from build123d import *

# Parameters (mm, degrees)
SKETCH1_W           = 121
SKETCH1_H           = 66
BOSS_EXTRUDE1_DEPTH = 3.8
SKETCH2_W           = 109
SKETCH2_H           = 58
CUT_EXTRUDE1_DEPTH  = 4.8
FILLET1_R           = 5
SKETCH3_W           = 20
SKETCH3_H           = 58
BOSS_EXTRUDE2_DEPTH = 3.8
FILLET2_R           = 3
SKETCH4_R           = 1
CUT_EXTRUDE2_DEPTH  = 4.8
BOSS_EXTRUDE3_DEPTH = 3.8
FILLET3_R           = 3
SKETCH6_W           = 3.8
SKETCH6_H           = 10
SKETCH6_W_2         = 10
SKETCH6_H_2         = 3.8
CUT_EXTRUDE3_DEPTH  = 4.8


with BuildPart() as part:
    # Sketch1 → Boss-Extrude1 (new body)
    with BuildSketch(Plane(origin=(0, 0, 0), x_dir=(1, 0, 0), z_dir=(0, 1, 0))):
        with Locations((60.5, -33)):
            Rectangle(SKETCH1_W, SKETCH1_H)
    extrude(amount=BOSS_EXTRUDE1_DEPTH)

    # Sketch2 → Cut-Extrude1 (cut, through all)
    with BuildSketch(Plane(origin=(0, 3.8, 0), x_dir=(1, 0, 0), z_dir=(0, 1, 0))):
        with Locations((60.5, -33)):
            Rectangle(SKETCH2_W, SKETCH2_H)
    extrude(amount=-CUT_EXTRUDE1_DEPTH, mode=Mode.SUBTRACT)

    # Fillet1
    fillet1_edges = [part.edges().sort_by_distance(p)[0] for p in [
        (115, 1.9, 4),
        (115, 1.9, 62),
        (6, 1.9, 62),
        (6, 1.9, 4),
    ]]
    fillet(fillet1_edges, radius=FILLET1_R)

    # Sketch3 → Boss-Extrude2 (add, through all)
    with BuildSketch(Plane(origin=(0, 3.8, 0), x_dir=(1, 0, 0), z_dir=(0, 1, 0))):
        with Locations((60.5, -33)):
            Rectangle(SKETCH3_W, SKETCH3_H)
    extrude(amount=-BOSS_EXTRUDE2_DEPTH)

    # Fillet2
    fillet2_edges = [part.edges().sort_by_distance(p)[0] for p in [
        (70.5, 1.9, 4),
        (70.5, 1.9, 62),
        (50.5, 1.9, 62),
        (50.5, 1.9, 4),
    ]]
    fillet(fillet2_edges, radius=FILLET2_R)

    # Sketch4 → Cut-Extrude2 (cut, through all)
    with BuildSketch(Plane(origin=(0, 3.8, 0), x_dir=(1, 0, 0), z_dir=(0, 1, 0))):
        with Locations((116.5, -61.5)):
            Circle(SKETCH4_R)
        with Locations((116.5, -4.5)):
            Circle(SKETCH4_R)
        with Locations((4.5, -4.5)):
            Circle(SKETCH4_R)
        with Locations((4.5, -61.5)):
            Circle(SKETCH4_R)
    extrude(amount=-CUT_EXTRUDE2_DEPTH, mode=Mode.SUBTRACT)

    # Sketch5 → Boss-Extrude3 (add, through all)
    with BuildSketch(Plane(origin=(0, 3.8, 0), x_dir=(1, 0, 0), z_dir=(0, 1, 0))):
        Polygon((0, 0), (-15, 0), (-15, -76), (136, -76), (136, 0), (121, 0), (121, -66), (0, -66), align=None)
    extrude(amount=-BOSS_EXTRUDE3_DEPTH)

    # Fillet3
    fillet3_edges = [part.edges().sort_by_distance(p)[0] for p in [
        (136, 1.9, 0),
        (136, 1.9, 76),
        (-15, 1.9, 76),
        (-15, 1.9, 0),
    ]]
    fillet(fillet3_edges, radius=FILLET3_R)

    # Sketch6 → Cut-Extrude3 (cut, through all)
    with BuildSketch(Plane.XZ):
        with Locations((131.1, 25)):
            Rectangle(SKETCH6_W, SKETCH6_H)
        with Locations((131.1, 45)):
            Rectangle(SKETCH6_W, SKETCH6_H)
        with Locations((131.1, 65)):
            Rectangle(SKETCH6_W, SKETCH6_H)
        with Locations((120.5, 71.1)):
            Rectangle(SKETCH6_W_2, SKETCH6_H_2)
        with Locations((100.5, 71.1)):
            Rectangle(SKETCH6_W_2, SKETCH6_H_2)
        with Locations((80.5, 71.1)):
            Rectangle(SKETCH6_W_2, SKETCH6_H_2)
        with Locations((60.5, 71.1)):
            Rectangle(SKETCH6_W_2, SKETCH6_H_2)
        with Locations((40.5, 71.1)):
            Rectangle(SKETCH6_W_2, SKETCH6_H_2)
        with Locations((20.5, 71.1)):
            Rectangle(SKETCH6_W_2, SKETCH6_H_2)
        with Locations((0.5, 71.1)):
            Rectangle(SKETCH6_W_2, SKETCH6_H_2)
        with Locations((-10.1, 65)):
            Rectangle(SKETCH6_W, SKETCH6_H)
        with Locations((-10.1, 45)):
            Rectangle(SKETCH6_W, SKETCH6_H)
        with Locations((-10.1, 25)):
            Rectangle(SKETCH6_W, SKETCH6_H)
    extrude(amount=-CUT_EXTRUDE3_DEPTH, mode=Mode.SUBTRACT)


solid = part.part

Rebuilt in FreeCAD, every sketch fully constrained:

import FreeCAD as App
import Part
import Sketcher
from FreeCAD import Vector


def edges_at(feature, points):
    """Names of the edges that pass closest to the given points."""
    edges = feature.Shape.Edges
    near = lambda p: min(range(len(edges)), key=lambda i: edges[i].distToShape(Part.Vertex(*p))[0])
    return sorted({f"Edge{near(p) + 1}" for p in points})


def add_polygon(sketch, points):
    """Adds a closed chain of lines whose ends are joined by coincident constraints."""
    first, n = sketch.GeometryCount, len(points)
    for a, b in zip(points, points[1:] + points[:1]):
        sketch.addGeometry(Part.LineSegment(App.Vector(*a, 0), App.Vector(*b, 0)), False)
    for i in range(n):
        sketch.addConstraint(Sketcher.Constraint("Coincident", first + i, 2, first + (i + 1) % n, 1))

doc = App.newDocument("Part")
body = doc.addObject("PartDesign::Body", "Body")

# Sketch on XZ plane
sketch1 = body.newObject("Sketcher::SketchObject", "Sketch")
sketch1.AttachmentSupport = (doc.getObject("XZ_Plane"), [""])
sketch1.MapMode = "FlatFace"
add_polygon(sketch1, [(0, 0), (0, 66), (121, 66), (121, 0)])  # lines 0-3
sketch1.addConstraint(Sketcher.Constraint("Vertical", 0))
sketch1.addConstraint(Sketcher.Constraint("Horizontal", 1))
sketch1.addConstraint(Sketcher.Constraint("Vertical", 2))
sketch1.addConstraint(Sketcher.Constraint("Horizontal", 3))
sketch1.addConstraint(Sketcher.Constraint("Coincident", 3, 2, -1, 1))
sketch1.addConstraint(Sketcher.Constraint("DistanceX", 1, 1, 1, 2, 121.0))
sketch1.addConstraint(Sketcher.Constraint("DistanceY", 0, 1, 0, 2, 66.0))
pad1 = body.newObject("PartDesign::Pad", "Pad")
pad1.Profile = sketch1
pad1.Length = 3.8
pad1.Reversed = True

# Sketch on XZ plane
sketch2 = body.newObject("Sketcher::SketchObject", "Sketch001")
sketch2.AttachmentSupport = (doc.getObject("XZ_Plane"), [""])
sketch2.MapMode = "FlatFace"
sketch2.AttachmentOffset = App.Placement(Vector(0, 0, -3.8), App.Rotation())
add_polygon(sketch2, [(6, 4), (6, 62), (115, 62), (115, 4)])  # lines 0-3
sketch2.addConstraint(Sketcher.Constraint("Vertical", 0))
sketch2.addConstraint(Sketcher.Constraint("Horizontal", 1))
sketch2.addConstraint(Sketcher.Constraint("Vertical", 2))
sketch2.addConstraint(Sketcher.Constraint("Horizontal", 3))
sketch2.addConstraint(Sketcher.Constraint("DistanceX", 1, 1, 1, 2, 109.0))
sketch2.addConstraint(Sketcher.Constraint("DistanceY", 0, 1, 0, 2, 58.0))
sketch2.addConstraint(Sketcher.Constraint("DistanceX", -1, 1, 0, 2, 6.0))
sketch2.addConstraint(Sketcher.Constraint("DistanceY", -1, 1, 0, 2, 62.0))
pocket1 = body.newObject("PartDesign::Pocket", "Pocket")
pocket1.Profile = sketch2
pocket1.Type = "ThroughAll"
pocket1.Reversed = True
doc.recompute()

fillet = body.newObject("PartDesign::Fillet", "Fillet")
fillet.Base = (pocket1, edges_at(pocket1, [
    (115, 1.9, 4),
    (115, 1.9, 62),
    (6, 1.9, 62),
    (6, 1.9, 4),
]))
fillet.Radius = 5

# Sketch on XZ plane
sketch3 = body.newObject("Sketcher::SketchObject", "Sketch002")
sketch3.AttachmentSupport = (doc.getObject("XZ_Plane"), [""])
sketch3.MapMode = "FlatFace"
sketch3.AttachmentOffset = App.Placement(Vector(0, 0, -3.8), App.Rotation())
add_polygon(sketch3, [(50.5, 4), (50.5, 62), (70.5, 62), (70.5, 4)])  # lines 0-3
sketch3.addConstraint(Sketcher.Constraint("Vertical", 0))
sketch3.addConstraint(Sketcher.Constraint("Horizontal", 1))
sketch3.addConstraint(Sketcher.Constraint("Vertical", 2))
sketch3.addConstraint(Sketcher.Constraint("Horizontal", 3))
sketch3.addConstraint(Sketcher.Constraint("DistanceX", 1, 1, 1, 2, 20.0))
sketch3.addConstraint(Sketcher.Constraint("DistanceY", 0, 1, 0, 2, 58.0))
sketch3.addConstraint(Sketcher.Constraint("DistanceY", -1, 1, 0, 2, 62.0))
sketch3.addConstraint(Sketcher.Constraint("DistanceX", -1, 1, 0, 2, 50.5))
pad2 = body.newObject("PartDesign::Pad", "Pad001")
pad2.Profile = sketch3
pad2.Length = 3.8
doc.recompute()

fillet2 = body.newObject("PartDesign::Fillet", "Fillet001")
fillet2.Base = (pad2, edges_at(pad2, [
    (70.5, 1.9, 4),
    (70.5, 1.9, 62),
    (50.5, 1.9, 62),
    (50.5, 1.9, 4),
]))
fillet2.Radius = 3

# Sketch on XZ plane
sketch4 = body.newObject("Sketcher::SketchObject", "Sketch003")
sketch4.AttachmentSupport = (doc.getObject("XZ_Plane"), [""])
sketch4.MapMode = "FlatFace"
sketch4.AttachmentOffset = App.Placement(Vector(0, 0, -3.8), App.Rotation())
sketch4.addGeometry(Part.Circle(Vector(116.5, 61.5, 0), Vector(0, 0, 1), 1), False)
sketch4.addGeometry(Part.Circle(Vector(116.5, 4.5, 0), Vector(0, 0, 1), 1), False)
sketch4.addGeometry(Part.Circle(Vector(4.5, 4.5, 0), Vector(0, 0, 1), 1), False)
sketch4.addGeometry(Part.Circle(Vector(4.5, 61.5, 0), Vector(0, 0, 1), 1), False)
sketch4.addConstraint(Sketcher.Constraint("Equal", 0, 1))
sketch4.addConstraint(Sketcher.Constraint("Equal", 1, 2))
sketch4.addConstraint(Sketcher.Constraint("Equal", 2, 3))
sketch4.addConstraint(Sketcher.Constraint("Horizontal", 1, 3, 2, 3))
sketch4.addConstraint(Sketcher.Constraint("Horizontal", 0, 3, 3, 3))
sketch4.addConstraint(Sketcher.Constraint("Vertical", 0, 3, 1, 3))
sketch4.addConstraint(Sketcher.Constraint("Vertical", 2, 3, 3, 3))
sketch4.addConstraint(Sketcher.Constraint("Diameter", 0, 2.0))
sketch4.addConstraint(Sketcher.Constraint("DistanceY", 1, 3, 0, 3, 57.0))
sketch4.addConstraint(Sketcher.Constraint("DistanceX", 2, 3, 1, 3, 112.0))
sketch4.addConstraint(Sketcher.Constraint("DistanceX", -1, 1, 0, 3, 116.5))
sketch4.addConstraint(Sketcher.Constraint("DistanceY", -1, 1, 0, 3, 61.5))
pocket2 = body.newObject("PartDesign::Pocket", "Pocket001")
pocket2.Profile = sketch4
pocket2.Type = "ThroughAll"
pocket2.Reversed = True

# Sketch on XZ plane
sketch5 = body.newObject("Sketcher::SketchObject", "Sketch004")
sketch5.AttachmentSupport = (doc.getObject("XZ_Plane"), [""])
sketch5.MapMode = "FlatFace"
sketch5.AttachmentOffset = App.Placement(Vector(0, 0, -3.8), App.Rotation())
add_polygon(sketch5, [(0, 0), (-15, 0), (-15, 76), (136, 76), (136, 0), (121, 0), (121, 66), (0, 66)])  # lines 0-7
sketch5.addConstraint(Sketcher.Constraint("Horizontal", 0))
sketch5.addConstraint(Sketcher.Constraint("Vertical", 1))
sketch5.addConstraint(Sketcher.Constraint("Horizontal", 2))
sketch5.addConstraint(Sketcher.Constraint("Vertical", 3))
sketch5.addConstraint(Sketcher.Constraint("Horizontal", 4))
sketch5.addConstraint(Sketcher.Constraint("Vertical", 5))
sketch5.addConstraint(Sketcher.Constraint("Horizontal", 6))
sketch5.addConstraint(Sketcher.Constraint("Vertical", 7))
sketch5.addConstraint(Sketcher.Constraint("Coincident", 7, 2, -1, 1))
sketch5.addConstraint(Sketcher.Constraint("PointOnObject", 3, 2, -1))
sketch5.addConstraint(Sketcher.Constraint("Equal", 0, 4))
sketch5.addConstraint(Sketcher.Constraint("DistanceX", 0, 2, 0, 1, 15.0))
sketch5.addConstraint(Sketcher.Constraint("DistanceX", 2, 1, 2, 2, 151.0))
sketch5.addConstraint(Sketcher.Constraint("DistanceY", 1, 1, 1, 2, 76.0))
sketch5.addConstraint(Sketcher.Constraint("DistanceY", 5, 1, 5, 2, 66.0))
pad3 = body.newObject("PartDesign::Pad", "Pad002")
pad3.Profile = sketch5
pad3.Type = "UpToLast"
doc.recompute()

fillet3 = body.newObject("PartDesign::Fillet", "Fillet002")
fillet3.Base = (pad3, edges_at(pad3, [
    (136, 1.9, 0),
    (136, 1.9, 76),
    (-15, 1.9, 76),
    (-15, 1.9, 0),
]))
fillet3.Radius = 3

# Sketch on XZ plane
sketch6 = body.newObject("Sketcher::SketchObject", "Sketch005")
sketch6.AttachmentSupport = (doc.getObject("XZ_Plane"), [""])
sketch6.MapMode = "FlatFace"
add_polygon(sketch6, [(129.2, 30), (129.2, 20), (133, 20), (133, 30)])  # lines 0-3
add_polygon(sketch6, [(129.2, 50), (129.2, 40), (133, 40), (133, 50)])  # lines 4-7
add_polygon(sketch6, [(129.2, 70), (129.2, 60), (133, 60), (133, 70)])  # lines 8-11
add_polygon(sketch6, [(115.5, 73), (115.5, 69.2), (125.5, 69.2), (125.5, 73)])  # lines 12-15
add_polygon(sketch6, [(95.5, 73), (95.5, 69.2), (105.5, 69.2), (105.5, 73)])  # lines 16-19
add_polygon(sketch6, [(75.5, 73), (75.5, 69.2), (85.5, 69.2), (85.5, 73)])  # lines 20-23
add_polygon(sketch6, [(55.5, 73), (55.5, 69.2), (65.5, 69.2), (65.5, 73)])  # lines 24-27
add_polygon(sketch6, [(35.5, 73), (35.5, 69.2), (45.5, 69.2), (45.5, 73)])  # lines 28-31
add_polygon(sketch6, [(15.5, 73), (15.5, 69.2), (25.5, 69.2), (25.5, 73)])  # lines 32-35
add_polygon(sketch6, [(-4.5, 73), (-4.5, 69.2), (5.5, 69.2), (5.5, 73)])  # lines 36-39
add_polygon(sketch6, [(-12, 70), (-12, 60), (-8.2, 60), (-8.2, 70)])  # lines 40-43
add_polygon(sketch6, [(-12, 50), (-12, 40), (-8.2, 40), (-8.2, 50)])  # lines 44-47
add_polygon(sketch6, [(-12, 30), (-12, 20), (-8.2, 20), (-8.2, 30)])  # lines 48-51
sketch6.addConstraint(Sketcher.Constraint("Vertical", 0))
sketch6.addConstraint(Sketcher.Constraint("Horizontal", 1))
sketch6.addConstraint(Sketcher.Constraint("Vertical", 2))
sketch6.addConstraint(Sketcher.Constraint("Horizontal", 3))
sketch6.addConstraint(Sketcher.Constraint("Vertical", 4))
sketch6.addConstraint(Sketcher.Constraint("Horizontal", 5))
sketch6.addConstraint(Sketcher.Constraint("Vertical", 6))
sketch6.addConstraint(Sketcher.Constraint("Horizontal", 7))
sketch6.addConstraint(Sketcher.Constraint("Vertical", 8))
sketch6.addConstraint(Sketcher.Constraint("Horizontal", 9))
sketch6.addConstraint(Sketcher.Constraint("Vertical", 10))
sketch6.addConstraint(Sketcher.Constraint("Horizontal", 11))
sketch6.addConstraint(Sketcher.Constraint("Vertical", 12))
sketch6.addConstraint(Sketcher.Constraint("Horizontal", 13))
sketch6.addConstraint(Sketcher.Constraint("Vertical", 14))
sketch6.addConstraint(Sketcher.Constraint("Horizontal", 15))
sketch6.addConstraint(Sketcher.Constraint("Vertical", 16))
sketch6.addConstraint(Sketcher.Constraint("Horizontal", 17))
sketch6.addConstraint(Sketcher.Constraint("Vertical", 18))
sketch6.addConstraint(Sketcher.Constraint("Horizontal", 19))
sketch6.addConstraint(Sketcher.Constraint("Vertical", 20))
sketch6.addConstraint(Sketcher.Constraint("Horizontal", 21))
sketch6.addConstraint(Sketcher.Constraint("Vertical", 22))
sketch6.addConstraint(Sketcher.Constraint("Horizontal", 23))
sketch6.addConstraint(Sketcher.Constraint("Vertical", 24))
sketch6.addConstraint(Sketcher.Constraint("Horizontal", 25))
sketch6.addConstraint(Sketcher.Constraint("Vertical", 26))
sketch6.addConstraint(Sketcher.Constraint("Horizontal", 27))
sketch6.addConstraint(Sketcher.Constraint("Vertical", 28))
sketch6.addConstraint(Sketcher.Constraint("Horizontal", 29))
sketch6.addConstraint(Sketcher.Constraint("Vertical", 30))
sketch6.addConstraint(Sketcher.Constraint("Horizontal", 31))
sketch6.addConstraint(Sketcher.Constraint("Vertical", 32))
sketch6.addConstraint(Sketcher.Constraint("Horizontal", 33))
sketch6.addConstraint(Sketcher.Constraint("Vertical", 34))
sketch6.addConstraint(Sketcher.Constraint("Horizontal", 35))
sketch6.addConstraint(Sketcher.Constraint("Vertical", 36))
sketch6.addConstraint(Sketcher.Constraint("Horizontal", 37))
sketch6.addConstraint(Sketcher.Constraint("Vertical", 38))
sketch6.addConstraint(Sketcher.Constraint("Horizontal", 39))
sketch6.addConstraint(Sketcher.Constraint("Vertical", 40))
sketch6.addConstraint(Sketcher.Constraint("Horizontal", 41))
sketch6.addConstraint(Sketcher.Constraint("Vertical", 42))
sketch6.addConstraint(Sketcher.Constraint("Horizontal", 43))
sketch6.addConstraint(Sketcher.Constraint("Vertical", 44))
sketch6.addConstraint(Sketcher.Constraint("Horizontal", 45))
sketch6.addConstraint(Sketcher.Constraint("Vertical", 46))
sketch6.addConstraint(Sketcher.Constraint("Horizontal", 47))
sketch6.addConstraint(Sketcher.Constraint("Vertical", 48))
sketch6.addConstraint(Sketcher.Constraint("Horizontal", 49))
sketch6.addConstraint(Sketcher.Constraint("Vertical", 50))
sketch6.addConstraint(Sketcher.Constraint("Horizontal", 51))
sketch6.addConstraint(Sketcher.Constraint("Horizontal", 13, 2, 16, 2))
sketch6.addConstraint(Sketcher.Constraint("Horizontal", 15, 2, 18, 2))
sketch6.addConstraint(Sketcher.Constraint("Horizontal", 17, 2, 20, 2))
sketch6.addConstraint(Sketcher.Constraint("Horizontal", 19, 2, 22, 2))
sketch6.addConstraint(Sketcher.Constraint("Horizontal", 21, 2, 24, 2))
sketch6.addConstraint(Sketcher.Constraint("Horizontal", 23, 2, 26, 2))
sketch6.addConstraint(Sketcher.Constraint("Horizontal", 25, 2, 28, 2))
sketch6.addConstraint(Sketcher.Constraint("Horizontal", 27, 2, 30, 2))
sketch6.addConstraint(Sketcher.Constraint("Horizontal", 29, 2, 32, 2))
sketch6.addConstraint(Sketcher.Constraint("Horizontal", 31, 2, 34, 2))
sketch6.addConstraint(Sketcher.Constraint("Horizontal", 33, 2, 36, 2))
sketch6.addConstraint(Sketcher.Constraint("Horizontal", 35, 2, 38, 2))
sketch6.addConstraint(Sketcher.Constraint("Horizontal", 9, 2, 40, 2))
sketch6.addConstraint(Sketcher.Constraint("Horizontal", 11, 2, 42, 2))
sketch6.addConstraint(Sketcher.Constraint("Horizontal", 5, 2, 44, 2))
sketch6.addConstraint(Sketcher.Constraint("Horizontal", 7, 2, 46, 2))
sketch6.addConstraint(Sketcher.Constraint("Horizontal", 1, 2, 48, 2))
sketch6.addConstraint(Sketcher.Constraint("Horizontal", 3, 2, 50, 2))
sketch6.addConstraint(Sketcher.Constraint("Vertical", 3, 2, 4, 2))
sketch6.addConstraint(Sketcher.Constraint("Vertical", 2, 2, 5, 2))
sketch6.addConstraint(Sketcher.Constraint("Vertical", 7, 2, 8, 2))
sketch6.addConstraint(Sketcher.Constraint("Vertical", 6, 2, 9, 2))
sketch6.addConstraint(Sketcher.Constraint("Vertical", 43, 2, 44, 2))
sketch6.addConstraint(Sketcher.Constraint("Vertical", 42, 2, 45, 2))
sketch6.addConstraint(Sketcher.Constraint("Vertical", 47, 2, 48, 2))
sketch6.addConstraint(Sketcher.Constraint("Vertical", 46, 2, 49, 2))
sketch6.addConstraint(Sketcher.Constraint("Equal", 15, 17))
sketch6.addConstraint(Sketcher.Constraint("Equal", 19, 21))
sketch6.addConstraint(Sketcher.Constraint("Equal", 23, 25))
sketch6.addConstraint(Sketcher.Constraint("Equal", 27, 29))
sketch6.addConstraint(Sketcher.Constraint("Equal", 31, 33))
sketch6.addConstraint(Sketcher.Constraint("Equal", 35, 37))
sketch6.addConstraint(Sketcher.Constraint("Equal", 11, 41))
sketch6.addConstraint(Sketcher.Constraint("Equal", 39, 0))
sketch6.addConstraint(Sketcher.Constraint("Equal", 2, 4))
sketch6.addConstraint(Sketcher.Constraint("Equal", 6, 8))
sketch6.addConstraint(Sketcher.Constraint("Equal", 51, 12))
sketch6.addConstraint(Sketcher.Constraint("DistanceX", 13, 1, 13, 2, 10.0))
sketch6.addConstraint(Sketcher.Constraint("DistanceX", 1, 1, 1, 2, 3.8))
sketch6.addConstraint(Sketcher.Constraint("DistanceY", -1, 1, 0, 2, 20.0))
sketch6.addConstraint(Sketcher.Constraint("DistanceX", -1, 1, 1, 2, 133.0))
sketch6.addConstraint(Sketcher.Constraint("DistanceY", -1, 1, 4, 2, 40.0))
sketch6.addConstraint(Sketcher.Constraint("DistanceY", -1, 1, 8, 2, 60.0))
sketch6.addConstraint(Sketcher.Constraint("DistanceY", -1, 1, 14, 2, 73.0))
sketch6.addConstraint(Sketcher.Constraint("DistanceX", 40, 2, -1, 1, 12.0))
sketch6.addConstraint(Sketcher.Constraint("DistanceX", 16, 2, 12, 2, 20.0))
sketch6.addConstraint(Sketcher.Constraint("DistanceX", 20, 2, 16, 2, 20.0))
sketch6.addConstraint(Sketcher.Constraint("DistanceX", 24, 2, 20, 2, 20.0))
sketch6.addConstraint(Sketcher.Constraint("DistanceX", 28, 2, 24, 2, 20.0))
sketch6.addConstraint(Sketcher.Constraint("DistanceX", 32, 2, 28, 2, 20.0))
sketch6.addConstraint(Sketcher.Constraint("DistanceX", 36, 2, 32, 2, 20.0))
sketch6.addConstraint(Sketcher.Constraint("DistanceX", -1, 1, 12, 2, 115.5))
pocket3 = body.newObject("PartDesign::Pocket", "Pocket002")
pocket3.Profile = sketch6
pocket3.Type = "ThroughAll"

doc.recompute()
